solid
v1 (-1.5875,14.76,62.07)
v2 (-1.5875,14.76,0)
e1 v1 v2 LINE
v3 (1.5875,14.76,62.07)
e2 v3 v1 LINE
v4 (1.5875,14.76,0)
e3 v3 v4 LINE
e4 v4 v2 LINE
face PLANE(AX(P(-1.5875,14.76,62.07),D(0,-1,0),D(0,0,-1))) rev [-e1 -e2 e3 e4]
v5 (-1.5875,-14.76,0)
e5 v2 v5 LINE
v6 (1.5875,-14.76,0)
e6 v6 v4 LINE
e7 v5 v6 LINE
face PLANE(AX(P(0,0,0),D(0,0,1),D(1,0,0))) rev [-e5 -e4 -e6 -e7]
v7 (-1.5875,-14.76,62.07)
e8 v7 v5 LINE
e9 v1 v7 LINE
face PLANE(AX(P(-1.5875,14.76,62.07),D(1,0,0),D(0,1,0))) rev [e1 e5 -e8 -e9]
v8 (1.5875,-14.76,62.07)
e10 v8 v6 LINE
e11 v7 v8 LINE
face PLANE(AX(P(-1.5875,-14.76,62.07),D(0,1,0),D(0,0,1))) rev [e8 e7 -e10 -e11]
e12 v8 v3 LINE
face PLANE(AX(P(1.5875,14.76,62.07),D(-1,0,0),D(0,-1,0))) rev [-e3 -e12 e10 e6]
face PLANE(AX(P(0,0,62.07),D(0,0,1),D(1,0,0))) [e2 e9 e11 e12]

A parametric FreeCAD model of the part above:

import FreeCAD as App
import Part
import Sketcher
Q = App.Units.Quantity

doc = App.newDocument("Part")
params = doc.addObject("Spreadsheet::Sheet", "Params")
for row, (alias, value) in enumerate([
    ("sketch1_width", "0.125 in"),
    ("pad1_length", "62.07 mm"),
], start=1):
    params.set(f"A{row}", alias)
    params.set(f"B{row}", "=" + value)
    params.setAlias(f"B{row}", alias)

body = doc.addObject("PartDesign::Body", "Body")

# Sketch on XY plane
sketch1 = doc.addObject("Sketcher::SketchObject", "Sketch")
body.addObject(sketch1)
sketch1.AttachmentSupport = (doc.XY_Plane, [""])
sketch1.MapMode = "FlatFace"
sketch1.addGeometry([
    Part.LineSegment(App.Vector(-1.6, 14.8, 0), App.Vector(-1.6, -14.8, 0)),
    Part.LineSegment(App.Vector(-1.6, -14.8, 0), App.Vector(1.6, -14.8, 0)),
    Part.LineSegment(App.Vector(1.6, -14.8, 0), App.Vector(1.6, 14.8, 0)),
    Part.LineSegment(App.Vector(1.6, 14.8, 0), App.Vector(-1.6, 14.8, 0)),
], False)
sketch1.addConstraint([
    Sketcher.Constraint("Coincident", 0, 2, 1, 1),
    Sketcher.Constraint("Coincident", 1, 2, 2, 1),
    Sketcher.Constraint("Coincident", 2, 2, 3, 1),
    Sketcher.Constraint("Coincident", 3, 2, 0, 1),
    Sketcher.Constraint("Vertical", 0),
    Sketcher.Constraint("Horizontal", 1),
    Sketcher.Constraint("Vertical", 2),
    Sketcher.Constraint("Horizontal", 3),
    Sketcher.Constraint("Symmetric", 0, 2, 2, 2, -1, 1),
    Sketcher.Constraint("DistanceX", 1, 1, 1, 2, Q("0.125 in")),
    Sketcher.Constraint("DistanceY", 0, 2, 0, 1, Q("29.52 mm")),
])
sketch1.setExpression("Constraints[9]", "Params.sketch1_width")
pad1 = doc.addObject("PartDesign::Pad", "Pad")
body.addObject(pad1)
pad1.Profile = sketch1
pad1.setExpression("Length", "Params.pad1_length")

doc.recompute()
